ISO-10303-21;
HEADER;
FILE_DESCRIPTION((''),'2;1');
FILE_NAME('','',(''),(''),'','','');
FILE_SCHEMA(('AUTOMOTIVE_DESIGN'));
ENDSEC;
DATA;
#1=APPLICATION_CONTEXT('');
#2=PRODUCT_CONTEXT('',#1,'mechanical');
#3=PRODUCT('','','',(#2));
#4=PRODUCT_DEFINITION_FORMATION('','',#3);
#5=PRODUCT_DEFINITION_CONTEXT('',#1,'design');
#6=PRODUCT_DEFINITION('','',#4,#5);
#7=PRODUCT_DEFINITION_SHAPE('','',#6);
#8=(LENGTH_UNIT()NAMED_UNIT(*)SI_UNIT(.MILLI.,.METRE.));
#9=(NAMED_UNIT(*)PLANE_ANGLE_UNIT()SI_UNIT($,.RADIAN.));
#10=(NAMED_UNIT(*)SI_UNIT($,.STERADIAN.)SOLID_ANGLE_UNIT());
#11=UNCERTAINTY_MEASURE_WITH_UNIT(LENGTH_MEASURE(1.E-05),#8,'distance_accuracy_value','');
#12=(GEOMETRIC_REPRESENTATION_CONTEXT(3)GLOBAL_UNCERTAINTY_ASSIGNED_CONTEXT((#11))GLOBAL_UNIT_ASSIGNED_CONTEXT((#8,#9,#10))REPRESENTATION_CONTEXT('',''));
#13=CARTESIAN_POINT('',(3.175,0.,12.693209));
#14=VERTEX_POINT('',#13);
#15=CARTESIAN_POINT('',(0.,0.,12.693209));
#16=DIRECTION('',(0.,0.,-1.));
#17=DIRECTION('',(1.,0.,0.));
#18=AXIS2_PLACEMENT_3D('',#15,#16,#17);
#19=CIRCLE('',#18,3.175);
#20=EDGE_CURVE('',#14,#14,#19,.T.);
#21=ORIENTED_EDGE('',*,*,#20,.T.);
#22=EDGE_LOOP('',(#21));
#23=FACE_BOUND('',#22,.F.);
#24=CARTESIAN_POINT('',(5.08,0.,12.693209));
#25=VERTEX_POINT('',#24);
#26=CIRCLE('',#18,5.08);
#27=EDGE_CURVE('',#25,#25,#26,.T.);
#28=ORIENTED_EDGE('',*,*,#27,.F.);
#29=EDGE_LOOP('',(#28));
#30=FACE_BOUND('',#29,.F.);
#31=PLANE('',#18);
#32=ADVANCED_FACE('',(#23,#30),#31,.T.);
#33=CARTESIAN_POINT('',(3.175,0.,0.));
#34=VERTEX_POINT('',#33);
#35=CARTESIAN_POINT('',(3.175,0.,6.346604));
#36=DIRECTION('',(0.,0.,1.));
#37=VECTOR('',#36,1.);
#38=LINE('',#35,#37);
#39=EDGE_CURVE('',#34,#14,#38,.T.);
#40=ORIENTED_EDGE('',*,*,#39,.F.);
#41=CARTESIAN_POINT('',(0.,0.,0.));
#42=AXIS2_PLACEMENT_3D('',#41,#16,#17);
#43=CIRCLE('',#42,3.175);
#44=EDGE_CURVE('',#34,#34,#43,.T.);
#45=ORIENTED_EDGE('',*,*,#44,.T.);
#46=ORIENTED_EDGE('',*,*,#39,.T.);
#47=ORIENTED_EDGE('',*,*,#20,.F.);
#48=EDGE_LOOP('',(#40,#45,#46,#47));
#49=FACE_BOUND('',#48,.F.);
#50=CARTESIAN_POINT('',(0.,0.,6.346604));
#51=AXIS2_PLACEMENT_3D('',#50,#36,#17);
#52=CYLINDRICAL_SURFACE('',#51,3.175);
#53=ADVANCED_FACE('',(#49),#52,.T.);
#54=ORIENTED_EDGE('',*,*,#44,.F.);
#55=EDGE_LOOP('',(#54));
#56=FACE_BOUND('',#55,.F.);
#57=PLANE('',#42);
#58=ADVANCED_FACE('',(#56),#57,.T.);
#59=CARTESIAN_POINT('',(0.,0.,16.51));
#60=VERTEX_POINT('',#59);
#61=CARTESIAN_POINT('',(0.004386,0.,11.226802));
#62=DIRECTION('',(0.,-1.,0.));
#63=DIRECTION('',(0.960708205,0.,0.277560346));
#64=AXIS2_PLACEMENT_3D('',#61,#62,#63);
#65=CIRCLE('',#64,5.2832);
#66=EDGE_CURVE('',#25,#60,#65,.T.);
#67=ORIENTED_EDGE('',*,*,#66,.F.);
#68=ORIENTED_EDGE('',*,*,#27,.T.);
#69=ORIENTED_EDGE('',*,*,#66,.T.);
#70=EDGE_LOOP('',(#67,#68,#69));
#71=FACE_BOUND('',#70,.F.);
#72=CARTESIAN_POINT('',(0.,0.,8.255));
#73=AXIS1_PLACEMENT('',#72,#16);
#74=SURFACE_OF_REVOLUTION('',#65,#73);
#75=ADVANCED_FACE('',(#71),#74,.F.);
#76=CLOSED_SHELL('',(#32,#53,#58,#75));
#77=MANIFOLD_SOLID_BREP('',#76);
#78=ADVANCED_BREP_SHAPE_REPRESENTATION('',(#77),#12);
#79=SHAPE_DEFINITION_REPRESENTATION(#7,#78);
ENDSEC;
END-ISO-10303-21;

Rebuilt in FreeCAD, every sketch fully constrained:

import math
import FreeCAD as App
import Part
import Sketcher
from FreeCAD import Vector
Q = App.Units.Quantity

doc = App.newDocument("Part")
body = doc.addObject("PartDesign::Body", "Body")

sketch1 = body.newObject("Sketcher::SketchObject", "Sketch")
sketch1.AttachmentSupport = (doc.getObject("XZ_Plane"), [""])
sketch1.MapMode = "FlatFace"
sketch1.addGeometry(Part.LineSegment(Vector(0, 0, 0), Vector(3.2, 0, 0)), False)
sketch1.addGeometry(Part.LineSegment(Vector(3.2, 0, 0), Vector(3.2, 12.7, 0)), False)
sketch1.addGeometry(Part.LineSegment(Vector(3.2, 12.7, 0), Vector(5.1, 12.7, 0)), False)
sketch1.addGeometry(Part.ArcOfCircle(Part.Circle(Vector(0, 11.2, 0), Vector(0, 0, 1), 5.3), math.radians(16), math.radians(90)), False)
sketch1.addGeometry(Part.LineSegment(Vector(0, 16.5, 0), Vector(0, 0, 0)), False)
sketch1.addConstraint(Sketcher.Constraint("Coincident", 0, 2, 1, 1))
sketch1.addConstraint(Sketcher.Constraint("Coincident", 1, 2, 2, 1))
sketch1.addConstraint(Sketcher.Constraint("Coincident", 2, 2, 3, 1))
sketch1.addConstraint(Sketcher.Constraint("Coincident", 3, 2, 4, 1))
sketch1.addConstraint(Sketcher.Constraint("Coincident", 4, 2, 0, 1))
sketch1.addConstraint(Sketcher.Constraint("Horizontal", 0))
sketch1.addConstraint(Sketcher.Constraint("Vertical", 1))
sketch1.addConstraint(Sketcher.Constraint("Horizontal", 2))
sketch1.addConstraint(Sketcher.Constraint("Vertical", 4))
sketch1.addConstraint(Sketcher.Constraint("Coincident", 4, 2, -1, 1))
sketch1.addConstraint(Sketcher.Constraint("Radius", 3, Q("0.208 in")))
sketch1.addConstraint(Sketcher.Constraint("DistanceY", 4, 2, 4, 1, Q("0.65 in")))
sketch1.addConstraint(Sketcher.Constraint("DistanceX", -1, 1, 2, 2, Q("0.2 in")))
sketch1.addConstraint(Sketcher.Constraint("DistanceX", 0, 1, 0, 2, Q("0.125 in")))
sketch1.addConstraint(Sketcher.Constraint("DistanceY", 1, 1, 1, 2, 12.693209))
revolution = body.newObject("PartDesign::Revolution", "Revolution")
revolution.Profile = sketch1
revolution.ReferenceAxis = (sketch1, ["V_Axis"])
revolution.Angle = 360

doc.recompute()
